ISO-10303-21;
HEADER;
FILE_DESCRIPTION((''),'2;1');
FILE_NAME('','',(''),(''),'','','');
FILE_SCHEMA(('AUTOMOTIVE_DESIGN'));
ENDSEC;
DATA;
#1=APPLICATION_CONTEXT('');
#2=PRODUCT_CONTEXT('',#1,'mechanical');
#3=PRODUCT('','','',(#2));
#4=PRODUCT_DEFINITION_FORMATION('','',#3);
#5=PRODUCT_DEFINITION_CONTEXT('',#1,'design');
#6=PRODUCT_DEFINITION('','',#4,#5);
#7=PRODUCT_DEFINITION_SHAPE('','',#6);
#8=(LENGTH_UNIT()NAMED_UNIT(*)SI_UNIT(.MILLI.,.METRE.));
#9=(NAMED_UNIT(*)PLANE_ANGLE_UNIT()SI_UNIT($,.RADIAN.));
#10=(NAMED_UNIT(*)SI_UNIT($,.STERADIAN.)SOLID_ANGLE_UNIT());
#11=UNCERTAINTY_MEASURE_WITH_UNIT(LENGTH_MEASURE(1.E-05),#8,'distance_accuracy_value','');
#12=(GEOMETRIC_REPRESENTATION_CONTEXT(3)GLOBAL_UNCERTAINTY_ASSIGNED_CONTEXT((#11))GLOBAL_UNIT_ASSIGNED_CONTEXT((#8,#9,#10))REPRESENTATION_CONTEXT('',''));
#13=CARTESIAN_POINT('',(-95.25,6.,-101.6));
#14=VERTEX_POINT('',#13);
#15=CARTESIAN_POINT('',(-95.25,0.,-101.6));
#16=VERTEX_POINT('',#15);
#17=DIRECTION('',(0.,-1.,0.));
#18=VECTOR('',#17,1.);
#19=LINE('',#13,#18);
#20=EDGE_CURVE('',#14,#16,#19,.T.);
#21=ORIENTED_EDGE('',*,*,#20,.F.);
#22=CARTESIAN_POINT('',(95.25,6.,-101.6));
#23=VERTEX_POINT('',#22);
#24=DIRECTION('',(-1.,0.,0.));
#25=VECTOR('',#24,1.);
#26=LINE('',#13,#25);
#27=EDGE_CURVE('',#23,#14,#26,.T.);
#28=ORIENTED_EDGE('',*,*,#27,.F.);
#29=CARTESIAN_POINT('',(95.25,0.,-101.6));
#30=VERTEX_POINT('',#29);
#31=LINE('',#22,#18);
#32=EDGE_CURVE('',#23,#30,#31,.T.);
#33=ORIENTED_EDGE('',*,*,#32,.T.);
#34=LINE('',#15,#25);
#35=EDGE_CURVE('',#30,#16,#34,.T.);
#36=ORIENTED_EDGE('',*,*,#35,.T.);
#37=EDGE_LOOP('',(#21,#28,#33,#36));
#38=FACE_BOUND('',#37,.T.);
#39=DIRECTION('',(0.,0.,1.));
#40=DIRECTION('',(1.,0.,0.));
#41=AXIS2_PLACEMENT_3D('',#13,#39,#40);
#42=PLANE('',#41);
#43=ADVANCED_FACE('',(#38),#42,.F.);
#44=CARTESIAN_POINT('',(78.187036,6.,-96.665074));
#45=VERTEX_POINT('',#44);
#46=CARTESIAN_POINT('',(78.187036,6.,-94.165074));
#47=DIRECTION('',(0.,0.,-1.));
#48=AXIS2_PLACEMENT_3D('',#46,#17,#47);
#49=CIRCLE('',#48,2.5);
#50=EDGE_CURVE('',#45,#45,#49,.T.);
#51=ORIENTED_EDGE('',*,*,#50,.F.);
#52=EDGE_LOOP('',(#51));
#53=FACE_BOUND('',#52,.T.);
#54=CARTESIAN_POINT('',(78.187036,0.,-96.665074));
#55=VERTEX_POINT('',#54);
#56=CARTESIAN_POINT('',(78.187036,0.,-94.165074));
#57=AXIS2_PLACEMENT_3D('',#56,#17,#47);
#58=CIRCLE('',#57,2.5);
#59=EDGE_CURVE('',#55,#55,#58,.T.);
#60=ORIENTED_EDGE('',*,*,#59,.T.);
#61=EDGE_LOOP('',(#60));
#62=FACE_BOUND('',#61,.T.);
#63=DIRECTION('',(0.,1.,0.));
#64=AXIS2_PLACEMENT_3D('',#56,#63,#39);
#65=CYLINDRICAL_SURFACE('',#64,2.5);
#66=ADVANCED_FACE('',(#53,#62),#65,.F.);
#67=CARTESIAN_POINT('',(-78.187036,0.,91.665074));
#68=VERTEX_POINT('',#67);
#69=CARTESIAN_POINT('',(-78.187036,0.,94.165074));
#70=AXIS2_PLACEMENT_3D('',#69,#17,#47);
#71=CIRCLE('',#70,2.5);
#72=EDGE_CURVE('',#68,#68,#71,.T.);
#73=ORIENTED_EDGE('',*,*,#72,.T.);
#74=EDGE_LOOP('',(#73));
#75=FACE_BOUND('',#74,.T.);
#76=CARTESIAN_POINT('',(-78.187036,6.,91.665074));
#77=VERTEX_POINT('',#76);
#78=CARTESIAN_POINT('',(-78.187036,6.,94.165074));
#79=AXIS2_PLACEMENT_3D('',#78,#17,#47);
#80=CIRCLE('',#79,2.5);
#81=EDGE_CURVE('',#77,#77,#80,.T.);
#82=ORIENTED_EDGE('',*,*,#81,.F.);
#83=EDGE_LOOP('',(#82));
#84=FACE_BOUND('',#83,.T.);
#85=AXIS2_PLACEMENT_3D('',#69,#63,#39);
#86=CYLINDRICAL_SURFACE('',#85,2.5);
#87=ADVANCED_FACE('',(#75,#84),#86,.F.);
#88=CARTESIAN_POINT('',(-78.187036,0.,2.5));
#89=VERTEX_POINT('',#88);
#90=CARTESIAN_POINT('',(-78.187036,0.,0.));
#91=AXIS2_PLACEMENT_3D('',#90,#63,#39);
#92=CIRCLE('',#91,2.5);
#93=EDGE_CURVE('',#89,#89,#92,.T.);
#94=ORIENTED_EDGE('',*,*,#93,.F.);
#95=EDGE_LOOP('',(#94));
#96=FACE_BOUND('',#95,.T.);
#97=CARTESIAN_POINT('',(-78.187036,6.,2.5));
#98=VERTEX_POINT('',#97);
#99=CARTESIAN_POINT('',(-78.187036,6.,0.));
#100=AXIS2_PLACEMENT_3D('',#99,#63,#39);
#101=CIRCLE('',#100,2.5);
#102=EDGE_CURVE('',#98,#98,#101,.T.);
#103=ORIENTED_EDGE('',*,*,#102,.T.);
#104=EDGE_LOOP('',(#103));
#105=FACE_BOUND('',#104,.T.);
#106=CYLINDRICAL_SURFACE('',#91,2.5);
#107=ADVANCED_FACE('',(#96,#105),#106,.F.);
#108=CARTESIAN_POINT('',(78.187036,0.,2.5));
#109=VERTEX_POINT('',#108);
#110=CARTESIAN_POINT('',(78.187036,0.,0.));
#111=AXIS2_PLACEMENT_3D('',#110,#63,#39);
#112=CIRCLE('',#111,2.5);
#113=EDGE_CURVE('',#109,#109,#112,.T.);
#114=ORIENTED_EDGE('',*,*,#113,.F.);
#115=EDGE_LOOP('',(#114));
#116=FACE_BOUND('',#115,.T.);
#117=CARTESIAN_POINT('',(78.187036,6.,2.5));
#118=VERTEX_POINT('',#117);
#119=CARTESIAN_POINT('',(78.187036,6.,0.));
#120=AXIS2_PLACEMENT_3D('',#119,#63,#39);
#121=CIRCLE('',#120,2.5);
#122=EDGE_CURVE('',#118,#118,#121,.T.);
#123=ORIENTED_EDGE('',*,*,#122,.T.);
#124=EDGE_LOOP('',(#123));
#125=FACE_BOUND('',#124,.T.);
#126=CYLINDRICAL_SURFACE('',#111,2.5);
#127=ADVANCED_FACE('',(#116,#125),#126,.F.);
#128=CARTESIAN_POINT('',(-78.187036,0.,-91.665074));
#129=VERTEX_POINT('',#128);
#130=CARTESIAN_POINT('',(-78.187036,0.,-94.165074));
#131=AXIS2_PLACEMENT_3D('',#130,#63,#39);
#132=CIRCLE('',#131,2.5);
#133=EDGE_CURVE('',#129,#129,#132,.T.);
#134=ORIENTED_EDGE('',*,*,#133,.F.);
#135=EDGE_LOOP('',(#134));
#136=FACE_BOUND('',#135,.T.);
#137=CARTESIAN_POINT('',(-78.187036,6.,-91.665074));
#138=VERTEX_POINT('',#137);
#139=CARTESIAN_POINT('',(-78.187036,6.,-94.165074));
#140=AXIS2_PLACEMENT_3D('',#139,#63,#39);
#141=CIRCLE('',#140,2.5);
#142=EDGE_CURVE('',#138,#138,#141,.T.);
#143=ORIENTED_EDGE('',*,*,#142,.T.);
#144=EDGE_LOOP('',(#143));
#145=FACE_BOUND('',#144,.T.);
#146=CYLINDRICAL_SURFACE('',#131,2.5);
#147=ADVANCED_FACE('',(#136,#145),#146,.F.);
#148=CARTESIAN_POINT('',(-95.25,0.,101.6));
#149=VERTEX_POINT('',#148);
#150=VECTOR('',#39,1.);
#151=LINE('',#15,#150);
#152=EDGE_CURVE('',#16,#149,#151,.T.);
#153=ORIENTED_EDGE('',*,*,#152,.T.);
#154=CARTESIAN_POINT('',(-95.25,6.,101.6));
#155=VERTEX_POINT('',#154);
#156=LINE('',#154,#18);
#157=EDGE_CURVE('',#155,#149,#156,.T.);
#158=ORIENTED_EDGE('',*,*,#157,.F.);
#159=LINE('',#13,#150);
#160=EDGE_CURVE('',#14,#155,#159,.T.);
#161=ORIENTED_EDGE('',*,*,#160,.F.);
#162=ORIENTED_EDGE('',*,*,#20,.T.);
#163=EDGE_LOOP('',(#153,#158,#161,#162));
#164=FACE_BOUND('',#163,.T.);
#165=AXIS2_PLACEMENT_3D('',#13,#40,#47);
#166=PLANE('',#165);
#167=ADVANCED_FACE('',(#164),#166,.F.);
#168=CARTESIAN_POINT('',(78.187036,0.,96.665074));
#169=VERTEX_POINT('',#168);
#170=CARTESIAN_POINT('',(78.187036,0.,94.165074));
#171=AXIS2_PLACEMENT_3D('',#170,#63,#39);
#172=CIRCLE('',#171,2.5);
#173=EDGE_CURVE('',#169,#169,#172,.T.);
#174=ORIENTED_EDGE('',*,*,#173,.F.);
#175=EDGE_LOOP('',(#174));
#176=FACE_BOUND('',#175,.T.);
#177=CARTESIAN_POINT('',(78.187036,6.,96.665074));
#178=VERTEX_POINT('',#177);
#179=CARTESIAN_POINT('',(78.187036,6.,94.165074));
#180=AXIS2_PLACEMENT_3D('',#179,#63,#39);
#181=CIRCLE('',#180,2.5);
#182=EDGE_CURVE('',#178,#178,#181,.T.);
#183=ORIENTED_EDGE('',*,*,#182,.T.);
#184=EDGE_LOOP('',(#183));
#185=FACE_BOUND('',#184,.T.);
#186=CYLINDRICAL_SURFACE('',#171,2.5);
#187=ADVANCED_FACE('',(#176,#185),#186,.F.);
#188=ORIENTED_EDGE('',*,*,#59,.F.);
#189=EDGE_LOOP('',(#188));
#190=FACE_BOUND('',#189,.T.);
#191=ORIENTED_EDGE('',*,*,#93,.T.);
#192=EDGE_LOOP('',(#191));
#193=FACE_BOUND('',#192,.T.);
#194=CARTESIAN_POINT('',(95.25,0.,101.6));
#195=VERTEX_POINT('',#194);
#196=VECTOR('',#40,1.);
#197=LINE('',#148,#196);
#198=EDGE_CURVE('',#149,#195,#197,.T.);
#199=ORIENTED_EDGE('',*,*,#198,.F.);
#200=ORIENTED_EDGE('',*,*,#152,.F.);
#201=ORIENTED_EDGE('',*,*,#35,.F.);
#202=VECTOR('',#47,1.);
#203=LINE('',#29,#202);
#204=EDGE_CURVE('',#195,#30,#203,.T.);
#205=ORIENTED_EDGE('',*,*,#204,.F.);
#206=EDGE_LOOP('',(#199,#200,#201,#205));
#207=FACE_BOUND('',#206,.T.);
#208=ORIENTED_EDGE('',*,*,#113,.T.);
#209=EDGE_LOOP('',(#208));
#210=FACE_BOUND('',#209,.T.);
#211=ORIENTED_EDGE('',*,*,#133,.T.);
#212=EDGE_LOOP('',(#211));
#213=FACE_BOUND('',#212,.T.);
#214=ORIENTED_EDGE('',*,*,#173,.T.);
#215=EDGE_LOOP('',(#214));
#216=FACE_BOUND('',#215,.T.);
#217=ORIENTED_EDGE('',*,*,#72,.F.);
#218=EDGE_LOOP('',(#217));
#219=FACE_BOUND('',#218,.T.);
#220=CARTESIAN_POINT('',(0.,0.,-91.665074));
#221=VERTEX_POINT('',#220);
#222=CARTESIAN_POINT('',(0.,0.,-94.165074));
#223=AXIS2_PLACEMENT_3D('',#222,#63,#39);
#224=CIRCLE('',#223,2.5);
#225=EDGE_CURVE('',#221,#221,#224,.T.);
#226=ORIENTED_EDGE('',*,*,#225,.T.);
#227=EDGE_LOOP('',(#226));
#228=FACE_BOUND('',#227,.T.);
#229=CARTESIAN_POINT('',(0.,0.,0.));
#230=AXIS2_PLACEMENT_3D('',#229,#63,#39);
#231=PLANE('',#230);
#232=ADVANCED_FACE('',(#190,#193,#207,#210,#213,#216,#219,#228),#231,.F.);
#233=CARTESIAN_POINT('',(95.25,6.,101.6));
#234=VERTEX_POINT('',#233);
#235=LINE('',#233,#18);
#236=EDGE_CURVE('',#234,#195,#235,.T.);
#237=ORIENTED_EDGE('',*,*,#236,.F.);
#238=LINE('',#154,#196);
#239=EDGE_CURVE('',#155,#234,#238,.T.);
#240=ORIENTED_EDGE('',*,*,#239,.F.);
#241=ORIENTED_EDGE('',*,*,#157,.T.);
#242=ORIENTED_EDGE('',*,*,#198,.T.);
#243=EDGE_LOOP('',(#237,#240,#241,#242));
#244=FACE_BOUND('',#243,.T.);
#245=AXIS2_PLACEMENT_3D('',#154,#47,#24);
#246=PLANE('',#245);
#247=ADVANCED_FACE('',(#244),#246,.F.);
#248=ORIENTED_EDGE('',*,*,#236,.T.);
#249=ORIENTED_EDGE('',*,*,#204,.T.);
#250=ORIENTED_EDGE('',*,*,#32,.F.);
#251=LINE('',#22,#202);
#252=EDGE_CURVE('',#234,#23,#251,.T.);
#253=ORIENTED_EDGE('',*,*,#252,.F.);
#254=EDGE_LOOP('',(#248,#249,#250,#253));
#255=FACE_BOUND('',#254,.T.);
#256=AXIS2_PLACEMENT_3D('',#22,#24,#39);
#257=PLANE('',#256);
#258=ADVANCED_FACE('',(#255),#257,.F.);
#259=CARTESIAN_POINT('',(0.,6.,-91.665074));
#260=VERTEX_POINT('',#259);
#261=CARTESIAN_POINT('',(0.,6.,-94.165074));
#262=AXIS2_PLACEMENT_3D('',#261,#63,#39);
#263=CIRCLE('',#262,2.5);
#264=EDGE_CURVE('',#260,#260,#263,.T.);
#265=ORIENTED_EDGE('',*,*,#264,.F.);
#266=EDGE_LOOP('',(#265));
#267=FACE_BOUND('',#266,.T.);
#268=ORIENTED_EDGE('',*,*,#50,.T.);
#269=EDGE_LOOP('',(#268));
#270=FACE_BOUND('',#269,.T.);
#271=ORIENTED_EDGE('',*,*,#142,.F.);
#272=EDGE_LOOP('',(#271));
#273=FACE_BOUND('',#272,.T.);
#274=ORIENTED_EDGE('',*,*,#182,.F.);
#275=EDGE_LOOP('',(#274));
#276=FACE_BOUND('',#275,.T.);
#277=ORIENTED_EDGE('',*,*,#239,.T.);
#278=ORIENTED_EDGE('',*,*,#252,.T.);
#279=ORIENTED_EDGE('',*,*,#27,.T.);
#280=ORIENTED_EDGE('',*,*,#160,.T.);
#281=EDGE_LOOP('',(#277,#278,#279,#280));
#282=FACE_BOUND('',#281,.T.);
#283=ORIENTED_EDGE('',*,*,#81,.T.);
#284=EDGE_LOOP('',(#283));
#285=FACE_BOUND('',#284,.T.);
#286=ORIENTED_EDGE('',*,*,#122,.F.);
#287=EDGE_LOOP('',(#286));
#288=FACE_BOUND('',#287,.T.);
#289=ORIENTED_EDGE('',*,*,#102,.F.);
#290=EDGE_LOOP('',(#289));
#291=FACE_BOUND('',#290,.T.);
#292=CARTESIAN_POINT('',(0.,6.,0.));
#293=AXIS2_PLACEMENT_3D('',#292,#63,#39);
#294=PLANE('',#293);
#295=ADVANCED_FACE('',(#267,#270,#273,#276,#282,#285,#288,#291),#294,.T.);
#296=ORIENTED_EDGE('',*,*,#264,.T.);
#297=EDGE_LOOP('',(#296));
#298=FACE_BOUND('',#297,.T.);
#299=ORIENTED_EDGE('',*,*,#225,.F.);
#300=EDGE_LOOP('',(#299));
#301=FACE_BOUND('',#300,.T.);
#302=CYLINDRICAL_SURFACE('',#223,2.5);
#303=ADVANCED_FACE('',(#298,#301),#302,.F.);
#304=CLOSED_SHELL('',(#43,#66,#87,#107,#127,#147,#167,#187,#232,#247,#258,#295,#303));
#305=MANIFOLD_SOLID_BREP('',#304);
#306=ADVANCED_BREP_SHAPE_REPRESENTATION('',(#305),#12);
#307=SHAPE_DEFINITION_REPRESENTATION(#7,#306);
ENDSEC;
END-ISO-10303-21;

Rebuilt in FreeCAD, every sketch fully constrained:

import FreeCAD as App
import Part
import Sketcher
from FreeCAD import Vector
Q = App.Units.Quantity

doc = App.newDocument("Part")
params = doc.addObject("Spreadsheet::Sheet", "Params")
for row, (alias, value) in enumerate([
    ("sketch1_width", "190.5 mm"),
    ("sketch1_height", "203.2 mm"),
    ("pad1_length", "6 mm"),
    ("sketch2_diameter", "5 mm"),
], start=1):
    params.set(f"A{row}", alias)
    params.set(f"B{row}", "=" + value)
    params.setAlias(f"B{row}", alias)

body = doc.addObject("PartDesign::Body", "Body")

# Sketch on XZ plane
sketch1 = doc.addObject("Sketcher::SketchObject", "Sketch")
body.addObject(sketch1)
sketch1.AttachmentSupport = (doc.XZ_Plane, [""])
sketch1.MapMode = "FlatFace"
sketch1.addGeometry(Part.LineSegment(Vector(-95, -102, 0), Vector(-95, 102, 0)), False)
sketch1.addGeometry(Part.LineSegment(Vector(-95, 102, 0), Vector(95, 102, 0)), False)
sketch1.addGeometry(Part.LineSegment(Vector(95, 102, 0), Vector(95, -102, 0)), False)
sketch1.addGeometry(Part.LineSegment(Vector(95, -102, 0), Vector(-95, -102, 0)), False)
sketch1.addConstraint(Sketcher.Constraint("Coincident", 0, 2, 1, 1))
sketch1.addConstraint(Sketcher.Constraint("Coincident", 1, 2, 2, 1))
sketch1.addConstraint(Sketcher.Constraint("Coincident", 2, 2, 3, 1))
sketch1.addConstraint(Sketcher.Constraint("Coincident", 3, 2, 0, 1))
sketch1.addConstraint(Sketcher.Constraint("Vertical", 0))
sketch1.addConstraint(Sketcher.Constraint("Horizontal", 1))
sketch1.addConstraint(Sketcher.Constraint("Vertical", 2))
sketch1.addConstraint(Sketcher.Constraint("Horizontal", 3))
sketch1.addConstraint(Sketcher.Constraint("Symmetric", 0, 2, 2, 2, -1, 1))
sketch1.addConstraint(Sketcher.Constraint("DistanceX", 1, 1, 1, 2, Q("190.5 mm")))
sketch1.addConstraint(Sketcher.Constraint("DistanceY", 0, 1, 0, 2, Q("203.2 mm")))
sketch1.setExpression("Constraints[9]", "Params.sketch1_width")
sketch1.setExpression("Constraints[10]", "Params.sketch1_height")
pad1 = doc.addObject("PartDesign::Pad", "Pad")
body.addObject(pad1)
pad1.Profile = sketch1
pad1.setExpression("Length", "Params.pad1_length")
pad1.Reversed = True

# Sketch on XZ plane
sketch2 = doc.addObject("Sketcher::SketchObject", "Sketch001")
body.addObject(sketch2)
sketch2.AttachmentSupport = (doc.XZ_Plane, [""])
sketch2.MapMode = "FlatFace"
sketch2.AttachmentOffset = App.Placement(Vector(0, 0, -6), App.Rotation())
sketch2.addGeometry(Part.Circle(Vector(-78.2, -94.2, 0), Vector(0, 0, 1), 2.5), False)
sketch2.addGeometry(Part.Circle(Vector(0, -94.2, 0), Vector(0, 0, 1), 2.5), False)
sketch2.addGeometry(Part.Circle(Vector(78.2, 0, 0), Vector(0, 0, 1), 2.5), False)
sketch2.addGeometry(Part.Circle(Vector(-78.2, 0, 0), Vector(0, 0, 1), 2.5), False)
sketch2.addGeometry(Part.Circle(Vector(78.2, -94.2, 0), Vector(0, 0, 1), 2.5), False)
sketch2.addGeometry(Part.Circle(Vector(-78.2, 94.2, 0), Vector(0, 0, 1), 2.5), False)
sketch2.addGeometry(Part.Circle(Vector(78.2, 94.2, 0), Vector(0, 0, 1), 2.5), False)
sketch2.addConstraint(Sketcher.Constraint("Equal", 0, 1))
sketch2.addConstraint(Sketcher.Constraint("Equal", 1, 2))
sketch2.addConstraint(Sketcher.Constraint("Equal", 2, 3))
sketch2.addConstraint(Sketcher.Constraint("Equal", 3, 4))
sketch2.addConstraint(Sketcher.Constraint("Equal", 4, 5))
sketch2.addConstraint(Sketcher.Constraint("Equal", 5, 6))
sketch2.addConstraint(Sketcher.Constraint("Symmetric", 2, 3, 3, 3, -1, 1))
sketch2.addConstraint(Sketcher.Constraint("Symmetric", 4, 3, 5, 3, -1, 1))
sketch2.addConstraint(Sketcher.Constraint("Symmetric", 0, 3, 6, 3, -1, 1))
sketch2.addConstraint(Sketcher.Constraint("Symmetric", 0, 3, 4, 3, -2))
sketch2.addConstraint(Sketcher.Constraint("PointOnObject", 1, 3, -2))
sketch2.addConstraint(Sketcher.Constraint("PointOnObject", 2, 3, -1))
sketch2.addConstraint(Sketcher.Constraint("Horizontal", 0, 3, 1, 3))
sketch2.addConstraint(Sketcher.Constraint("Vertical", 0, 3, 3, 3))
sketch2.addConstraint(Sketcher.Constraint("Diameter", 0, Q("5 mm")))
sketch2.addConstraint(Sketcher.Constraint("DistanceX", 0, 3, -1, 1, Q("78.187036 mm")))
sketch2.addConstraint(Sketcher.Constraint("DistanceY", 0, 3, -1, 1, Q("94.165074 mm")))
sketch2.setExpression("Constraints[14]", "Params.sketch2_diameter")
pocket1 = doc.addObject("PartDesign::Pocket", "Pocket")
body.addObject(pocket1)
pocket1.Profile = sketch2
pocket1.Type = "ThroughAll"
pocket1.Reversed = True

doc.recompute()
